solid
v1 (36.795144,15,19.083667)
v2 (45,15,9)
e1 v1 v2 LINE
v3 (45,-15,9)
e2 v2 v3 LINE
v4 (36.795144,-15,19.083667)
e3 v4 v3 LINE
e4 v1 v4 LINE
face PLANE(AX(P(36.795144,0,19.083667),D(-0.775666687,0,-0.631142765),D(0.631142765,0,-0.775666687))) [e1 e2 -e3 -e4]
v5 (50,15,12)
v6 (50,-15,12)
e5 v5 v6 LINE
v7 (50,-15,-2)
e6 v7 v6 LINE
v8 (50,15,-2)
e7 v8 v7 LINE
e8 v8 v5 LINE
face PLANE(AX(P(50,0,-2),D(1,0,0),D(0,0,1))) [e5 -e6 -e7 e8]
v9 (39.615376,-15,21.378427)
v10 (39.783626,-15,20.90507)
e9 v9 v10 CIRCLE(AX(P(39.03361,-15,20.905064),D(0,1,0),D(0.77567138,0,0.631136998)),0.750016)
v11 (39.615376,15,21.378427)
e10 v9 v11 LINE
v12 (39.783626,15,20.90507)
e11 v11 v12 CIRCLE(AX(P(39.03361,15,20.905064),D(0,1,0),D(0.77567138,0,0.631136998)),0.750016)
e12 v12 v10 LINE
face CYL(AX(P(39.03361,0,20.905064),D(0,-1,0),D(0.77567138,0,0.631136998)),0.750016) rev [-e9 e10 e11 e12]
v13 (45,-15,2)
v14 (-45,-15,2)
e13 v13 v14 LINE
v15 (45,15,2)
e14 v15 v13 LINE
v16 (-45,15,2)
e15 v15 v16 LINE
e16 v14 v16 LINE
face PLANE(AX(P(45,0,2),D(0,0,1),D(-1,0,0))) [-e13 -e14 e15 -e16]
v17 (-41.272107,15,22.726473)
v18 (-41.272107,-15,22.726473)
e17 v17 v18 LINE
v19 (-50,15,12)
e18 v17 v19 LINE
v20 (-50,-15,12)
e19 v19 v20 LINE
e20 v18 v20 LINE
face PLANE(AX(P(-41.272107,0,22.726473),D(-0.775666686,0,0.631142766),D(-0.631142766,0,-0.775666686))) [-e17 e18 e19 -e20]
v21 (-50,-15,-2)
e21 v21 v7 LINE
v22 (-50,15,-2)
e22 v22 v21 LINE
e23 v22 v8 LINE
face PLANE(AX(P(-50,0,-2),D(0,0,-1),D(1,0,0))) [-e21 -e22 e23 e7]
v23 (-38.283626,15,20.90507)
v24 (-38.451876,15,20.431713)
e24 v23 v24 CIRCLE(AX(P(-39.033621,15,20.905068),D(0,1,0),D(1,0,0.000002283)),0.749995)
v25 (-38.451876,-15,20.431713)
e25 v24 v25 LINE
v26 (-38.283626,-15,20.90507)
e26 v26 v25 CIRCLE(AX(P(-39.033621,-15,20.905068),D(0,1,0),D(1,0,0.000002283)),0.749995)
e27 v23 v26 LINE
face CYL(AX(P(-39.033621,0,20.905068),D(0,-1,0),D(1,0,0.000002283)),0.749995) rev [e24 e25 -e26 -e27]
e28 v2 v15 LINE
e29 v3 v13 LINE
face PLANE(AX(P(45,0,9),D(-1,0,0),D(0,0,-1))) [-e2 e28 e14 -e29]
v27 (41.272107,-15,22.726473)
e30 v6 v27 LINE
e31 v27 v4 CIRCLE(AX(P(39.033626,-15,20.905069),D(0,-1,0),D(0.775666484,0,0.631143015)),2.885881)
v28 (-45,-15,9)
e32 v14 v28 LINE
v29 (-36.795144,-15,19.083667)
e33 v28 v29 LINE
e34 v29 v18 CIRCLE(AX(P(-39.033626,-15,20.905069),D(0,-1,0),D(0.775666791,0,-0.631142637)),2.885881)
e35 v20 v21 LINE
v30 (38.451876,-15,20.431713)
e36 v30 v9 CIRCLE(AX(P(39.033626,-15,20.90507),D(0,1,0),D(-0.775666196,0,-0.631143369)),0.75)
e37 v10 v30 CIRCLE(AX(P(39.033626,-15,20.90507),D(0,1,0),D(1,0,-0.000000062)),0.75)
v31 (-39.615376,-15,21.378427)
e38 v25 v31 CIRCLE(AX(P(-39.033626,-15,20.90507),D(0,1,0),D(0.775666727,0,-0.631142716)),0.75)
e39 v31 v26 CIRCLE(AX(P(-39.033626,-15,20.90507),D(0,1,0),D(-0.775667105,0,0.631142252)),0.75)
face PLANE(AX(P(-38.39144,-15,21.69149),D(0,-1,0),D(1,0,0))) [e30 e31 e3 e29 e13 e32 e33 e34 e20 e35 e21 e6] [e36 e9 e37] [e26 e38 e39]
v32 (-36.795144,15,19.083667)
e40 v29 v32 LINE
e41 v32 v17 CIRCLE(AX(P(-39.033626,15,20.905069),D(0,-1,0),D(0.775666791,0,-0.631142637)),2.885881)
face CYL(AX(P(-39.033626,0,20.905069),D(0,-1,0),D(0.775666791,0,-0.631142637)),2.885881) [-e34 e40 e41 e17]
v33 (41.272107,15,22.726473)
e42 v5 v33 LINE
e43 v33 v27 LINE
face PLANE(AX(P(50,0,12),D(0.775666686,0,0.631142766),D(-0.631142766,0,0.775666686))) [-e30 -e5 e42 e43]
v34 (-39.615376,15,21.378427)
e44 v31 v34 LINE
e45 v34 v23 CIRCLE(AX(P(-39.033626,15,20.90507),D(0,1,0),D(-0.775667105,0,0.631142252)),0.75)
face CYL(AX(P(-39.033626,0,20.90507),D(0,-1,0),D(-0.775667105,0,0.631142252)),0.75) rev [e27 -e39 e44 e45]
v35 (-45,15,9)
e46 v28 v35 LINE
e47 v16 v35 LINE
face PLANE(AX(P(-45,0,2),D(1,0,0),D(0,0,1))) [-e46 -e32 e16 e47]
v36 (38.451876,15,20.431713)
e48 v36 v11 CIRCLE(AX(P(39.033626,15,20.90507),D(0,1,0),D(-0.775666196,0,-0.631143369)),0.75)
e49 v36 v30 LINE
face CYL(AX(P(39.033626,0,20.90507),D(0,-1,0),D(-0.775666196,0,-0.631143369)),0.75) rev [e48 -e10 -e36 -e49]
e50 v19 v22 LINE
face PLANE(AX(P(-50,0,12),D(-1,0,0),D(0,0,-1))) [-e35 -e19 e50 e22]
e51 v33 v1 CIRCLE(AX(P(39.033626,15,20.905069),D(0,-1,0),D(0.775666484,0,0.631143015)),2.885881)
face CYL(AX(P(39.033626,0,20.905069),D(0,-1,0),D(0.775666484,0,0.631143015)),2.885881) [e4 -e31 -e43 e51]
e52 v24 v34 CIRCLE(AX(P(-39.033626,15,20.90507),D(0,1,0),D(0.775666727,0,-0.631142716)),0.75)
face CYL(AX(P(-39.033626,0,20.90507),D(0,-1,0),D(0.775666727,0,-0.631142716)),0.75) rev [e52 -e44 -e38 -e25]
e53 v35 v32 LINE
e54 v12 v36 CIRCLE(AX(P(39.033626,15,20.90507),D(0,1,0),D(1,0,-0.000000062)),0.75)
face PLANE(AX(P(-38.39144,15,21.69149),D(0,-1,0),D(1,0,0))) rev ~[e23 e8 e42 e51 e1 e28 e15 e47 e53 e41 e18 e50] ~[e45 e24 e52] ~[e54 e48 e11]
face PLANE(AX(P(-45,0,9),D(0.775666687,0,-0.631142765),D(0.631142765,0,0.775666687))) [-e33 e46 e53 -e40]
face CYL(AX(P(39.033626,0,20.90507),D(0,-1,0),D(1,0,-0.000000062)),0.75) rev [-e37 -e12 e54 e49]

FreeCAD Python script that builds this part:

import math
import FreeCAD as App
import Part
import Sketcher

V = App.Vector
Q = App.Units.Quantity

doc = App.newDocument("Part")
body = doc.addObject("PartDesign::Body", "Body")

# Sketch on XZ plane
sketch1 = body.newObject("Sketcher::SketchObject", "Sketch")
sketch1.AttachmentSupport = (doc.getObject("XZ_Plane"), [""])
sketch1.MapMode = "FlatFace"
sketch1.addGeometry([
    Part.ArcOfCircle(Part.Circle(V(-39, 20.9, 0), V(0, 0, 1), 2.9), math.radians(-39), math.radians(141)),  # 0
    Part.LineSegment(V(-41.3, 22.7, 0), V(-50, 12, 0)),  # 1
    Part.LineSegment(V(-50, 12, 0), V(-50, -2, 0)),  # 2
    Part.LineSegment(V(-50, -2, 0), V(50, -2, 0)),  # 3
    Part.LineSegment(V(50, -2, 0), V(50, 12, 0)),  # 4
    Part.LineSegment(V(50, 12, 0), V(41.3, 22.7, 0)),  # 5
    Part.ArcOfCircle(Part.Circle(V(39, 20.9, 0), V(0, 0, 1), 2.9), math.radians(39), math.radians(219)),  # 6
    Part.LineSegment(V(36.8, 19.1, 0), V(45, 9, 0)),  # 7
    Part.LineSegment(V(45, 9, 0), V(45, 2, 0)),  # 8
    Part.LineSegment(V(45, 2, 0), V(-45, 2, 0)),  # 9
    Part.LineSegment(V(-45, 2, 0), V(-45, 9, 0)),  # 10
    Part.LineSegment(V(-45, 9, 0), V(-36.8, 19.1, 0)),  # 11
    Part.ArcOfCircle(Part.Circle(V(39, 20.9, 0), V(0, 0, 1), 0.8), math.radians(0), math.radians(39)),  # 12
    Part.ArcOfCircle(Part.Circle(V(39, 20.9, 0), V(0, 0, 1), 0.7), math.radians(-141), math.radians(0)),  # 13
    Part.ArcOfCircle(Part.Circle(V(39, 20.9, 0), V(0, 0, 1), 0.7), math.radians(39), math.radians(219)),  # 14
    Part.ArcOfCircle(Part.Circle(V(-39, 20.9, 0), V(0, 0, 1), 0.7), math.radians(0), math.radians(141)),  # 15
    Part.ArcOfCircle(Part.Circle(V(-39, 20.9, 0), V(0, 0, 1), 0.7), math.radians(-39), math.radians(0)),  # 16
    Part.ArcOfCircle(Part.Circle(V(-39, 20.9, 0), V(0, 0, 1), 0.7), math.radians(141), math.radians(321)),  # 17
], False)
sketch1.addConstraint([
    Sketcher.Constraint("Tangent", 0, 2, 1, 1),
    Sketcher.Constraint("Coincident", 1, 2, 2, 1),
    Sketcher.Constraint("Coincident", 2, 2, 3, 1),
    Sketcher.Constraint("Coincident", 3, 2, 4, 1),
    Sketcher.Constraint("Coincident", 4, 2, 5, 1),
    Sketcher.Constraint("Tangent", 5, 2, 6, 1),
    Sketcher.Constraint("Tangent", 6, 2, 7, 1),
    Sketcher.Constraint("Coincident", 7, 2, 8, 1),
    Sketcher.Constraint("Coincident", 8, 2, 9, 1),
    Sketcher.Constraint("Coincident", 9, 2, 10, 1),
    Sketcher.Constraint("Coincident", 10, 2, 11, 1),
    Sketcher.Constraint("Tangent", 11, 2, 0, 1),
    Sketcher.Constraint("Coincident", 12, 1, 13, 2),
    Sketcher.Constraint("Tangent", 13, 1, 14, 2),
    Sketcher.Constraint("Coincident", 14, 1, 12, 2),
    Sketcher.Constraint("Coincident", 15, 1, 16, 2),
    Sketcher.Constraint("Coincident", 16, 1, 17, 2),
    Sketcher.Constraint("Tangent", 17, 1, 15, 2),
    Sketcher.Constraint("Vertical", 2),
    Sketcher.Constraint("Horizontal", 3),
    Sketcher.Constraint("Vertical", 4),
    Sketcher.Constraint("Vertical", 8),
    Sketcher.Constraint("Horizontal", 9),
    Sketcher.Constraint("Vertical", 10),
    Sketcher.Constraint("Coincident", 13, 3, 6, 3),
    Sketcher.Constraint("Coincident", 15, 3, 0, 3),
    Sketcher.Constraint("Coincident", 16, 3, 0, 3),
    Sketcher.Constraint("Equal", 0, 6),
    Sketcher.Constraint("Equal", 13, 14),
    Sketcher.Constraint("Equal", 14, 15),
    Sketcher.Constraint("Symmetric", 0, 3, 6, 3, -2),
    Sketcher.Constraint("Symmetric", 1, 2, 4, 2, -2),
    Sketcher.Constraint("Symmetric", 7, 2, 10, 2, -2),
    Sketcher.Constraint("Parallel", 5, 7),
    Sketcher.Constraint("Horizontal", 17, 3, 12, 1),
    Sketcher.Constraint("Horizontal", 12, 1, 15, 1),
    Sketcher.Constraint("Horizontal", 13, 1, 16, 1),
    Sketcher.Constraint("Horizontal", 14, 1, 17, 1),
    Sketcher.Constraint("DistanceX", 3, 1, 3, 2, Q("100 mm")),
    Sketcher.Constraint("DistanceX", 9, 2, 9, 1, Q("90 mm")),
    Sketcher.Constraint("DistanceY", 2, 2, 2, 1, Q("14 mm")),
    Sketcher.Constraint("DistanceY", 8, 2, 8, 1, Q("7 mm")),
    Sketcher.Constraint("Radius", 13, Q("0.75 mm")),
    Sketcher.Constraint("Distance", 7, Q("13 mm")),
    Sketcher.Constraint("DistanceY", -1, 1, 1, 2, Q("12 mm")),
    Sketcher.Constraint("DistanceY", -1, 1, 7, 2, Q("9 mm")),
    Sketcher.Constraint("Radius", 0, Q("2.885881 mm")),
    Sketcher.Constraint("Radius", 12, Q("0.750016 mm")),
    Sketcher.Constraint("DistanceY", 13, 1, 12, 3, Q("0.473351 mm")),
    Sketcher.Constraint("DistanceX", 14, 1, 12, 1, Q("0.16825 mm")),
])
pad1 = body.newObject("PartDesign::Pad", "Pad")
pad1.Profile = sketch1
pad1.Length = 30
pad1.Midplane = True

doc.recompute()
